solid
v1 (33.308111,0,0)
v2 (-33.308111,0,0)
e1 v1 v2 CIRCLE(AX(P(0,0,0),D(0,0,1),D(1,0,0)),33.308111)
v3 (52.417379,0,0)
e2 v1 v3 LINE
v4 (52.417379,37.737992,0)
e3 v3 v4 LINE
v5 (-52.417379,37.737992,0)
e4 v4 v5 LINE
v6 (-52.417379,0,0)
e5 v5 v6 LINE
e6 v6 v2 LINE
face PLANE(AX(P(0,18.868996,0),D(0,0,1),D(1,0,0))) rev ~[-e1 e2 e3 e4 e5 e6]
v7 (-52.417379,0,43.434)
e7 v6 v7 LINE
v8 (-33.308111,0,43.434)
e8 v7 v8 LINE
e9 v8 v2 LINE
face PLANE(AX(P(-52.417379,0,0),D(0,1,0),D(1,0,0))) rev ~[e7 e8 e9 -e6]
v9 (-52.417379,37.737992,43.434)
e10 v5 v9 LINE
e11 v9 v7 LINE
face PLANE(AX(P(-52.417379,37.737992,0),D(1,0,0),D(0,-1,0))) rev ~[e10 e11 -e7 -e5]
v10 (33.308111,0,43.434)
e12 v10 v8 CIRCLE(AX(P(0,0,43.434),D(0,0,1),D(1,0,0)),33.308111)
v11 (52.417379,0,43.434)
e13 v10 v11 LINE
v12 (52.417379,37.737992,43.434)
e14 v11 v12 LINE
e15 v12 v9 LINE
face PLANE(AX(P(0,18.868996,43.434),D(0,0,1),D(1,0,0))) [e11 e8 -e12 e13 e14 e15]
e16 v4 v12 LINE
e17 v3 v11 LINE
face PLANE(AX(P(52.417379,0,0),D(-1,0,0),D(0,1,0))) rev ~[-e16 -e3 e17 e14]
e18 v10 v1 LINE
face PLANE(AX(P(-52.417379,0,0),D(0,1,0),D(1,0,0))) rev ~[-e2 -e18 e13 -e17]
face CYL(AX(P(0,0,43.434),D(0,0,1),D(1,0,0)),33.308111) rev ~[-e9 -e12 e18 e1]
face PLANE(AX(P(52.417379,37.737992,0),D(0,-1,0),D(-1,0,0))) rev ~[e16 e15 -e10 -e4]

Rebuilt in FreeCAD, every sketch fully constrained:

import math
import FreeCAD as App
import Part
import Sketcher

V = App.Vector
Q = App.Units.Quantity

doc = App.newDocument("Part")
params = doc.addObject("Spreadsheet::Sheet", "Params")
for row, (alias, value) in enumerate([
    ("pad1_length", "1.71 in"),
], start=1):
    params.set(f"A{row}", alias)
    params.set(f"B{row}", "=" + value)
    params.setAlias(f"B{row}", alias)

body = doc.addObject("PartDesign::Body", "Body")

# Sketch on XY plane
sketch1 = body.newObject("Sketcher::SketchObject", "Sketch")
sketch1.AttachmentSupport = (doc.getObject("XY_Plane"), [""])
sketch1.MapMode = "FlatFace"
sketch1.addGeometry([
    Part.LineSegment(V(-52, 38, 0), V(-52, 0, 0)),
    Part.LineSegment(V(-52, 0, 0), V(52, 0, 0)),
    Part.LineSegment(V(52, 0, 0), V(52, 38, 0)),
    Part.LineSegment(V(52, 38, 0), V(-52, 38, 0)),
], False)
sketch1.addConstraint([
    Sketcher.Constraint("Coincident", 0, 2, 1, 1),
    Sketcher.Constraint("Coincident", 1, 2, 2, 1),
    Sketcher.Constraint("Coincident", 2, 2, 3, 1),
    Sketcher.Constraint("Coincident", 3, 2, 0, 1),
    Sketcher.Constraint("Vertical", 0),
    Sketcher.Constraint("Horizontal", 1),
    Sketcher.Constraint("Vertical", 2),
    Sketcher.Constraint("Horizontal", 3),
    Sketcher.Constraint("Symmetric", 0, 2, 1, 2, -1, 1),
    Sketcher.Constraint("DistanceY", 0, 2, 0, 1, Q("37.737992 mm")),
    Sketcher.Constraint("DistanceX", 1, 1, 1, 2, Q("104.834758 mm")),
])
pad1 = body.newObject("PartDesign::Pad", "Pad")
pad1.Profile = sketch1
pad1.setExpression("Length", "Params.pad1_length")

# Sketch on XY plane
sketch2 = body.newObject("Sketcher::SketchObject", "Sketch001")
sketch2.AttachmentSupport = (doc.getObject("XY_Plane"), [""])
sketch2.MapMode = "FlatFace"
sketch2.AttachmentOffset = App.Placement(V(0, 0, 1.71 * 25.4), App.Rotation())
sketch2.addGeometry([
    Part.LineSegment(V(-33, 0, 0), V(33, 0, 0)),
    Part.ArcOfCircle(Part.Circle(V(0, 0, 0), V(0, 0, 1), 33), math.radians(0), math.radians(180)),
], False)
sketch2.addConstraint([
    Sketcher.Constraint("Coincident", 0, 1, 1, 2),
    Sketcher.Constraint("Coincident", 1, 1, 0, 2),
    Sketcher.Constraint("Horizontal", 0),
    Sketcher.Constraint("Coincident", 1, 3, -1, 1),
    Sketcher.Constraint("PointOnObject", 0, 1, -1),
    Sketcher.Constraint("Radius", 1, Q("33.308111 mm")),
])
pocket1 = body.newObject("PartDesign::Pocket", "Pocket")
pocket1.Profile = sketch2
pocket1.Type = "ThroughAll"

doc.recompute()
